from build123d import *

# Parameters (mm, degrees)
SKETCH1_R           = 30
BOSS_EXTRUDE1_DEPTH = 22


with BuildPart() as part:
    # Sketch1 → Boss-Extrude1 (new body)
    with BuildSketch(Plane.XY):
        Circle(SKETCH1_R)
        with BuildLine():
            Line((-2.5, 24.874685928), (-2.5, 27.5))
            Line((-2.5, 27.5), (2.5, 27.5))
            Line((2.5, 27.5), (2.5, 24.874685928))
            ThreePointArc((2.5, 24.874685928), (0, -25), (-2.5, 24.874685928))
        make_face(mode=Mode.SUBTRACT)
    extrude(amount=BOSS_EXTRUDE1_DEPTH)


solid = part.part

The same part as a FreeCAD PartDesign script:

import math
import FreeCAD as App
import Part
import Sketcher

doc = App.newDocument("Part")
body = doc.addObject("PartDesign::Body", "Body")

sketch1 = body.newObject("Sketcher::SketchObject", "Sketch")
sketch1.AttachmentSupport = (doc.getObject("XY_Plane"), [""])
sketch1.MapMode = "FlatFace"
sketch1.addGeometry([
    Part.Circle(App.Vector(0, 0, 0), App.Vector(0, 0, 1), 30),
    Part.ArcOfCircle(Part.Circle(App.Vector(0, 0, 0), App.Vector(0, 0, 1), 25), math.radians(95.73917), math.radians(444.26083)),
    Part.LineSegment(App.Vector(-2.5, 24.874686, 0), App.Vector(-2.5, 27.5, 0)),
    Part.LineSegment(App.Vector(-2.5, 27.5, 0), App.Vector(2.5, 27.5, 0)),
    Part.LineSegment(App.Vector(2.5, 27.5, 0), App.Vector(2.5, 24.874686, 0)),
], False)
sketch1.addConstraint([
    Sketcher.Constraint("Coincident", 1, 1, 2, 1),
    Sketcher.Constraint("Coincident", 2, 2, 3, 1),
    Sketcher.Constraint("Coincident", 3, 2, 4, 1),
    Sketcher.Constraint("Coincident", 4, 2, 1, 2),
    Sketcher.Constraint("Vertical", 2),
    Sketcher.Constraint("Horizontal", 3),
    Sketcher.Constraint("Vertical", 4),
    Sketcher.Constraint("Coincident", 0, 3, -1, 1),
    Sketcher.Constraint("Coincident", 1, 3, -1, 1),
    Sketcher.Constraint("Horizontal", 1, 1, 4, 2),
    Sketcher.Constraint("Diameter", 0, 60.0),
    Sketcher.Constraint("Radius", 1, 25.0),
    Sketcher.Constraint("DistanceX", 3, 1, 3, 2, 5.0),
    Sketcher.Constraint("DistanceY", -1, 1, 2, 2, 27.5),
])
pad1 = body.newObject("PartDesign::Pad", "Pad")
pad1.Profile = sketch1
pad1.Length = 22

doc.recompute()
